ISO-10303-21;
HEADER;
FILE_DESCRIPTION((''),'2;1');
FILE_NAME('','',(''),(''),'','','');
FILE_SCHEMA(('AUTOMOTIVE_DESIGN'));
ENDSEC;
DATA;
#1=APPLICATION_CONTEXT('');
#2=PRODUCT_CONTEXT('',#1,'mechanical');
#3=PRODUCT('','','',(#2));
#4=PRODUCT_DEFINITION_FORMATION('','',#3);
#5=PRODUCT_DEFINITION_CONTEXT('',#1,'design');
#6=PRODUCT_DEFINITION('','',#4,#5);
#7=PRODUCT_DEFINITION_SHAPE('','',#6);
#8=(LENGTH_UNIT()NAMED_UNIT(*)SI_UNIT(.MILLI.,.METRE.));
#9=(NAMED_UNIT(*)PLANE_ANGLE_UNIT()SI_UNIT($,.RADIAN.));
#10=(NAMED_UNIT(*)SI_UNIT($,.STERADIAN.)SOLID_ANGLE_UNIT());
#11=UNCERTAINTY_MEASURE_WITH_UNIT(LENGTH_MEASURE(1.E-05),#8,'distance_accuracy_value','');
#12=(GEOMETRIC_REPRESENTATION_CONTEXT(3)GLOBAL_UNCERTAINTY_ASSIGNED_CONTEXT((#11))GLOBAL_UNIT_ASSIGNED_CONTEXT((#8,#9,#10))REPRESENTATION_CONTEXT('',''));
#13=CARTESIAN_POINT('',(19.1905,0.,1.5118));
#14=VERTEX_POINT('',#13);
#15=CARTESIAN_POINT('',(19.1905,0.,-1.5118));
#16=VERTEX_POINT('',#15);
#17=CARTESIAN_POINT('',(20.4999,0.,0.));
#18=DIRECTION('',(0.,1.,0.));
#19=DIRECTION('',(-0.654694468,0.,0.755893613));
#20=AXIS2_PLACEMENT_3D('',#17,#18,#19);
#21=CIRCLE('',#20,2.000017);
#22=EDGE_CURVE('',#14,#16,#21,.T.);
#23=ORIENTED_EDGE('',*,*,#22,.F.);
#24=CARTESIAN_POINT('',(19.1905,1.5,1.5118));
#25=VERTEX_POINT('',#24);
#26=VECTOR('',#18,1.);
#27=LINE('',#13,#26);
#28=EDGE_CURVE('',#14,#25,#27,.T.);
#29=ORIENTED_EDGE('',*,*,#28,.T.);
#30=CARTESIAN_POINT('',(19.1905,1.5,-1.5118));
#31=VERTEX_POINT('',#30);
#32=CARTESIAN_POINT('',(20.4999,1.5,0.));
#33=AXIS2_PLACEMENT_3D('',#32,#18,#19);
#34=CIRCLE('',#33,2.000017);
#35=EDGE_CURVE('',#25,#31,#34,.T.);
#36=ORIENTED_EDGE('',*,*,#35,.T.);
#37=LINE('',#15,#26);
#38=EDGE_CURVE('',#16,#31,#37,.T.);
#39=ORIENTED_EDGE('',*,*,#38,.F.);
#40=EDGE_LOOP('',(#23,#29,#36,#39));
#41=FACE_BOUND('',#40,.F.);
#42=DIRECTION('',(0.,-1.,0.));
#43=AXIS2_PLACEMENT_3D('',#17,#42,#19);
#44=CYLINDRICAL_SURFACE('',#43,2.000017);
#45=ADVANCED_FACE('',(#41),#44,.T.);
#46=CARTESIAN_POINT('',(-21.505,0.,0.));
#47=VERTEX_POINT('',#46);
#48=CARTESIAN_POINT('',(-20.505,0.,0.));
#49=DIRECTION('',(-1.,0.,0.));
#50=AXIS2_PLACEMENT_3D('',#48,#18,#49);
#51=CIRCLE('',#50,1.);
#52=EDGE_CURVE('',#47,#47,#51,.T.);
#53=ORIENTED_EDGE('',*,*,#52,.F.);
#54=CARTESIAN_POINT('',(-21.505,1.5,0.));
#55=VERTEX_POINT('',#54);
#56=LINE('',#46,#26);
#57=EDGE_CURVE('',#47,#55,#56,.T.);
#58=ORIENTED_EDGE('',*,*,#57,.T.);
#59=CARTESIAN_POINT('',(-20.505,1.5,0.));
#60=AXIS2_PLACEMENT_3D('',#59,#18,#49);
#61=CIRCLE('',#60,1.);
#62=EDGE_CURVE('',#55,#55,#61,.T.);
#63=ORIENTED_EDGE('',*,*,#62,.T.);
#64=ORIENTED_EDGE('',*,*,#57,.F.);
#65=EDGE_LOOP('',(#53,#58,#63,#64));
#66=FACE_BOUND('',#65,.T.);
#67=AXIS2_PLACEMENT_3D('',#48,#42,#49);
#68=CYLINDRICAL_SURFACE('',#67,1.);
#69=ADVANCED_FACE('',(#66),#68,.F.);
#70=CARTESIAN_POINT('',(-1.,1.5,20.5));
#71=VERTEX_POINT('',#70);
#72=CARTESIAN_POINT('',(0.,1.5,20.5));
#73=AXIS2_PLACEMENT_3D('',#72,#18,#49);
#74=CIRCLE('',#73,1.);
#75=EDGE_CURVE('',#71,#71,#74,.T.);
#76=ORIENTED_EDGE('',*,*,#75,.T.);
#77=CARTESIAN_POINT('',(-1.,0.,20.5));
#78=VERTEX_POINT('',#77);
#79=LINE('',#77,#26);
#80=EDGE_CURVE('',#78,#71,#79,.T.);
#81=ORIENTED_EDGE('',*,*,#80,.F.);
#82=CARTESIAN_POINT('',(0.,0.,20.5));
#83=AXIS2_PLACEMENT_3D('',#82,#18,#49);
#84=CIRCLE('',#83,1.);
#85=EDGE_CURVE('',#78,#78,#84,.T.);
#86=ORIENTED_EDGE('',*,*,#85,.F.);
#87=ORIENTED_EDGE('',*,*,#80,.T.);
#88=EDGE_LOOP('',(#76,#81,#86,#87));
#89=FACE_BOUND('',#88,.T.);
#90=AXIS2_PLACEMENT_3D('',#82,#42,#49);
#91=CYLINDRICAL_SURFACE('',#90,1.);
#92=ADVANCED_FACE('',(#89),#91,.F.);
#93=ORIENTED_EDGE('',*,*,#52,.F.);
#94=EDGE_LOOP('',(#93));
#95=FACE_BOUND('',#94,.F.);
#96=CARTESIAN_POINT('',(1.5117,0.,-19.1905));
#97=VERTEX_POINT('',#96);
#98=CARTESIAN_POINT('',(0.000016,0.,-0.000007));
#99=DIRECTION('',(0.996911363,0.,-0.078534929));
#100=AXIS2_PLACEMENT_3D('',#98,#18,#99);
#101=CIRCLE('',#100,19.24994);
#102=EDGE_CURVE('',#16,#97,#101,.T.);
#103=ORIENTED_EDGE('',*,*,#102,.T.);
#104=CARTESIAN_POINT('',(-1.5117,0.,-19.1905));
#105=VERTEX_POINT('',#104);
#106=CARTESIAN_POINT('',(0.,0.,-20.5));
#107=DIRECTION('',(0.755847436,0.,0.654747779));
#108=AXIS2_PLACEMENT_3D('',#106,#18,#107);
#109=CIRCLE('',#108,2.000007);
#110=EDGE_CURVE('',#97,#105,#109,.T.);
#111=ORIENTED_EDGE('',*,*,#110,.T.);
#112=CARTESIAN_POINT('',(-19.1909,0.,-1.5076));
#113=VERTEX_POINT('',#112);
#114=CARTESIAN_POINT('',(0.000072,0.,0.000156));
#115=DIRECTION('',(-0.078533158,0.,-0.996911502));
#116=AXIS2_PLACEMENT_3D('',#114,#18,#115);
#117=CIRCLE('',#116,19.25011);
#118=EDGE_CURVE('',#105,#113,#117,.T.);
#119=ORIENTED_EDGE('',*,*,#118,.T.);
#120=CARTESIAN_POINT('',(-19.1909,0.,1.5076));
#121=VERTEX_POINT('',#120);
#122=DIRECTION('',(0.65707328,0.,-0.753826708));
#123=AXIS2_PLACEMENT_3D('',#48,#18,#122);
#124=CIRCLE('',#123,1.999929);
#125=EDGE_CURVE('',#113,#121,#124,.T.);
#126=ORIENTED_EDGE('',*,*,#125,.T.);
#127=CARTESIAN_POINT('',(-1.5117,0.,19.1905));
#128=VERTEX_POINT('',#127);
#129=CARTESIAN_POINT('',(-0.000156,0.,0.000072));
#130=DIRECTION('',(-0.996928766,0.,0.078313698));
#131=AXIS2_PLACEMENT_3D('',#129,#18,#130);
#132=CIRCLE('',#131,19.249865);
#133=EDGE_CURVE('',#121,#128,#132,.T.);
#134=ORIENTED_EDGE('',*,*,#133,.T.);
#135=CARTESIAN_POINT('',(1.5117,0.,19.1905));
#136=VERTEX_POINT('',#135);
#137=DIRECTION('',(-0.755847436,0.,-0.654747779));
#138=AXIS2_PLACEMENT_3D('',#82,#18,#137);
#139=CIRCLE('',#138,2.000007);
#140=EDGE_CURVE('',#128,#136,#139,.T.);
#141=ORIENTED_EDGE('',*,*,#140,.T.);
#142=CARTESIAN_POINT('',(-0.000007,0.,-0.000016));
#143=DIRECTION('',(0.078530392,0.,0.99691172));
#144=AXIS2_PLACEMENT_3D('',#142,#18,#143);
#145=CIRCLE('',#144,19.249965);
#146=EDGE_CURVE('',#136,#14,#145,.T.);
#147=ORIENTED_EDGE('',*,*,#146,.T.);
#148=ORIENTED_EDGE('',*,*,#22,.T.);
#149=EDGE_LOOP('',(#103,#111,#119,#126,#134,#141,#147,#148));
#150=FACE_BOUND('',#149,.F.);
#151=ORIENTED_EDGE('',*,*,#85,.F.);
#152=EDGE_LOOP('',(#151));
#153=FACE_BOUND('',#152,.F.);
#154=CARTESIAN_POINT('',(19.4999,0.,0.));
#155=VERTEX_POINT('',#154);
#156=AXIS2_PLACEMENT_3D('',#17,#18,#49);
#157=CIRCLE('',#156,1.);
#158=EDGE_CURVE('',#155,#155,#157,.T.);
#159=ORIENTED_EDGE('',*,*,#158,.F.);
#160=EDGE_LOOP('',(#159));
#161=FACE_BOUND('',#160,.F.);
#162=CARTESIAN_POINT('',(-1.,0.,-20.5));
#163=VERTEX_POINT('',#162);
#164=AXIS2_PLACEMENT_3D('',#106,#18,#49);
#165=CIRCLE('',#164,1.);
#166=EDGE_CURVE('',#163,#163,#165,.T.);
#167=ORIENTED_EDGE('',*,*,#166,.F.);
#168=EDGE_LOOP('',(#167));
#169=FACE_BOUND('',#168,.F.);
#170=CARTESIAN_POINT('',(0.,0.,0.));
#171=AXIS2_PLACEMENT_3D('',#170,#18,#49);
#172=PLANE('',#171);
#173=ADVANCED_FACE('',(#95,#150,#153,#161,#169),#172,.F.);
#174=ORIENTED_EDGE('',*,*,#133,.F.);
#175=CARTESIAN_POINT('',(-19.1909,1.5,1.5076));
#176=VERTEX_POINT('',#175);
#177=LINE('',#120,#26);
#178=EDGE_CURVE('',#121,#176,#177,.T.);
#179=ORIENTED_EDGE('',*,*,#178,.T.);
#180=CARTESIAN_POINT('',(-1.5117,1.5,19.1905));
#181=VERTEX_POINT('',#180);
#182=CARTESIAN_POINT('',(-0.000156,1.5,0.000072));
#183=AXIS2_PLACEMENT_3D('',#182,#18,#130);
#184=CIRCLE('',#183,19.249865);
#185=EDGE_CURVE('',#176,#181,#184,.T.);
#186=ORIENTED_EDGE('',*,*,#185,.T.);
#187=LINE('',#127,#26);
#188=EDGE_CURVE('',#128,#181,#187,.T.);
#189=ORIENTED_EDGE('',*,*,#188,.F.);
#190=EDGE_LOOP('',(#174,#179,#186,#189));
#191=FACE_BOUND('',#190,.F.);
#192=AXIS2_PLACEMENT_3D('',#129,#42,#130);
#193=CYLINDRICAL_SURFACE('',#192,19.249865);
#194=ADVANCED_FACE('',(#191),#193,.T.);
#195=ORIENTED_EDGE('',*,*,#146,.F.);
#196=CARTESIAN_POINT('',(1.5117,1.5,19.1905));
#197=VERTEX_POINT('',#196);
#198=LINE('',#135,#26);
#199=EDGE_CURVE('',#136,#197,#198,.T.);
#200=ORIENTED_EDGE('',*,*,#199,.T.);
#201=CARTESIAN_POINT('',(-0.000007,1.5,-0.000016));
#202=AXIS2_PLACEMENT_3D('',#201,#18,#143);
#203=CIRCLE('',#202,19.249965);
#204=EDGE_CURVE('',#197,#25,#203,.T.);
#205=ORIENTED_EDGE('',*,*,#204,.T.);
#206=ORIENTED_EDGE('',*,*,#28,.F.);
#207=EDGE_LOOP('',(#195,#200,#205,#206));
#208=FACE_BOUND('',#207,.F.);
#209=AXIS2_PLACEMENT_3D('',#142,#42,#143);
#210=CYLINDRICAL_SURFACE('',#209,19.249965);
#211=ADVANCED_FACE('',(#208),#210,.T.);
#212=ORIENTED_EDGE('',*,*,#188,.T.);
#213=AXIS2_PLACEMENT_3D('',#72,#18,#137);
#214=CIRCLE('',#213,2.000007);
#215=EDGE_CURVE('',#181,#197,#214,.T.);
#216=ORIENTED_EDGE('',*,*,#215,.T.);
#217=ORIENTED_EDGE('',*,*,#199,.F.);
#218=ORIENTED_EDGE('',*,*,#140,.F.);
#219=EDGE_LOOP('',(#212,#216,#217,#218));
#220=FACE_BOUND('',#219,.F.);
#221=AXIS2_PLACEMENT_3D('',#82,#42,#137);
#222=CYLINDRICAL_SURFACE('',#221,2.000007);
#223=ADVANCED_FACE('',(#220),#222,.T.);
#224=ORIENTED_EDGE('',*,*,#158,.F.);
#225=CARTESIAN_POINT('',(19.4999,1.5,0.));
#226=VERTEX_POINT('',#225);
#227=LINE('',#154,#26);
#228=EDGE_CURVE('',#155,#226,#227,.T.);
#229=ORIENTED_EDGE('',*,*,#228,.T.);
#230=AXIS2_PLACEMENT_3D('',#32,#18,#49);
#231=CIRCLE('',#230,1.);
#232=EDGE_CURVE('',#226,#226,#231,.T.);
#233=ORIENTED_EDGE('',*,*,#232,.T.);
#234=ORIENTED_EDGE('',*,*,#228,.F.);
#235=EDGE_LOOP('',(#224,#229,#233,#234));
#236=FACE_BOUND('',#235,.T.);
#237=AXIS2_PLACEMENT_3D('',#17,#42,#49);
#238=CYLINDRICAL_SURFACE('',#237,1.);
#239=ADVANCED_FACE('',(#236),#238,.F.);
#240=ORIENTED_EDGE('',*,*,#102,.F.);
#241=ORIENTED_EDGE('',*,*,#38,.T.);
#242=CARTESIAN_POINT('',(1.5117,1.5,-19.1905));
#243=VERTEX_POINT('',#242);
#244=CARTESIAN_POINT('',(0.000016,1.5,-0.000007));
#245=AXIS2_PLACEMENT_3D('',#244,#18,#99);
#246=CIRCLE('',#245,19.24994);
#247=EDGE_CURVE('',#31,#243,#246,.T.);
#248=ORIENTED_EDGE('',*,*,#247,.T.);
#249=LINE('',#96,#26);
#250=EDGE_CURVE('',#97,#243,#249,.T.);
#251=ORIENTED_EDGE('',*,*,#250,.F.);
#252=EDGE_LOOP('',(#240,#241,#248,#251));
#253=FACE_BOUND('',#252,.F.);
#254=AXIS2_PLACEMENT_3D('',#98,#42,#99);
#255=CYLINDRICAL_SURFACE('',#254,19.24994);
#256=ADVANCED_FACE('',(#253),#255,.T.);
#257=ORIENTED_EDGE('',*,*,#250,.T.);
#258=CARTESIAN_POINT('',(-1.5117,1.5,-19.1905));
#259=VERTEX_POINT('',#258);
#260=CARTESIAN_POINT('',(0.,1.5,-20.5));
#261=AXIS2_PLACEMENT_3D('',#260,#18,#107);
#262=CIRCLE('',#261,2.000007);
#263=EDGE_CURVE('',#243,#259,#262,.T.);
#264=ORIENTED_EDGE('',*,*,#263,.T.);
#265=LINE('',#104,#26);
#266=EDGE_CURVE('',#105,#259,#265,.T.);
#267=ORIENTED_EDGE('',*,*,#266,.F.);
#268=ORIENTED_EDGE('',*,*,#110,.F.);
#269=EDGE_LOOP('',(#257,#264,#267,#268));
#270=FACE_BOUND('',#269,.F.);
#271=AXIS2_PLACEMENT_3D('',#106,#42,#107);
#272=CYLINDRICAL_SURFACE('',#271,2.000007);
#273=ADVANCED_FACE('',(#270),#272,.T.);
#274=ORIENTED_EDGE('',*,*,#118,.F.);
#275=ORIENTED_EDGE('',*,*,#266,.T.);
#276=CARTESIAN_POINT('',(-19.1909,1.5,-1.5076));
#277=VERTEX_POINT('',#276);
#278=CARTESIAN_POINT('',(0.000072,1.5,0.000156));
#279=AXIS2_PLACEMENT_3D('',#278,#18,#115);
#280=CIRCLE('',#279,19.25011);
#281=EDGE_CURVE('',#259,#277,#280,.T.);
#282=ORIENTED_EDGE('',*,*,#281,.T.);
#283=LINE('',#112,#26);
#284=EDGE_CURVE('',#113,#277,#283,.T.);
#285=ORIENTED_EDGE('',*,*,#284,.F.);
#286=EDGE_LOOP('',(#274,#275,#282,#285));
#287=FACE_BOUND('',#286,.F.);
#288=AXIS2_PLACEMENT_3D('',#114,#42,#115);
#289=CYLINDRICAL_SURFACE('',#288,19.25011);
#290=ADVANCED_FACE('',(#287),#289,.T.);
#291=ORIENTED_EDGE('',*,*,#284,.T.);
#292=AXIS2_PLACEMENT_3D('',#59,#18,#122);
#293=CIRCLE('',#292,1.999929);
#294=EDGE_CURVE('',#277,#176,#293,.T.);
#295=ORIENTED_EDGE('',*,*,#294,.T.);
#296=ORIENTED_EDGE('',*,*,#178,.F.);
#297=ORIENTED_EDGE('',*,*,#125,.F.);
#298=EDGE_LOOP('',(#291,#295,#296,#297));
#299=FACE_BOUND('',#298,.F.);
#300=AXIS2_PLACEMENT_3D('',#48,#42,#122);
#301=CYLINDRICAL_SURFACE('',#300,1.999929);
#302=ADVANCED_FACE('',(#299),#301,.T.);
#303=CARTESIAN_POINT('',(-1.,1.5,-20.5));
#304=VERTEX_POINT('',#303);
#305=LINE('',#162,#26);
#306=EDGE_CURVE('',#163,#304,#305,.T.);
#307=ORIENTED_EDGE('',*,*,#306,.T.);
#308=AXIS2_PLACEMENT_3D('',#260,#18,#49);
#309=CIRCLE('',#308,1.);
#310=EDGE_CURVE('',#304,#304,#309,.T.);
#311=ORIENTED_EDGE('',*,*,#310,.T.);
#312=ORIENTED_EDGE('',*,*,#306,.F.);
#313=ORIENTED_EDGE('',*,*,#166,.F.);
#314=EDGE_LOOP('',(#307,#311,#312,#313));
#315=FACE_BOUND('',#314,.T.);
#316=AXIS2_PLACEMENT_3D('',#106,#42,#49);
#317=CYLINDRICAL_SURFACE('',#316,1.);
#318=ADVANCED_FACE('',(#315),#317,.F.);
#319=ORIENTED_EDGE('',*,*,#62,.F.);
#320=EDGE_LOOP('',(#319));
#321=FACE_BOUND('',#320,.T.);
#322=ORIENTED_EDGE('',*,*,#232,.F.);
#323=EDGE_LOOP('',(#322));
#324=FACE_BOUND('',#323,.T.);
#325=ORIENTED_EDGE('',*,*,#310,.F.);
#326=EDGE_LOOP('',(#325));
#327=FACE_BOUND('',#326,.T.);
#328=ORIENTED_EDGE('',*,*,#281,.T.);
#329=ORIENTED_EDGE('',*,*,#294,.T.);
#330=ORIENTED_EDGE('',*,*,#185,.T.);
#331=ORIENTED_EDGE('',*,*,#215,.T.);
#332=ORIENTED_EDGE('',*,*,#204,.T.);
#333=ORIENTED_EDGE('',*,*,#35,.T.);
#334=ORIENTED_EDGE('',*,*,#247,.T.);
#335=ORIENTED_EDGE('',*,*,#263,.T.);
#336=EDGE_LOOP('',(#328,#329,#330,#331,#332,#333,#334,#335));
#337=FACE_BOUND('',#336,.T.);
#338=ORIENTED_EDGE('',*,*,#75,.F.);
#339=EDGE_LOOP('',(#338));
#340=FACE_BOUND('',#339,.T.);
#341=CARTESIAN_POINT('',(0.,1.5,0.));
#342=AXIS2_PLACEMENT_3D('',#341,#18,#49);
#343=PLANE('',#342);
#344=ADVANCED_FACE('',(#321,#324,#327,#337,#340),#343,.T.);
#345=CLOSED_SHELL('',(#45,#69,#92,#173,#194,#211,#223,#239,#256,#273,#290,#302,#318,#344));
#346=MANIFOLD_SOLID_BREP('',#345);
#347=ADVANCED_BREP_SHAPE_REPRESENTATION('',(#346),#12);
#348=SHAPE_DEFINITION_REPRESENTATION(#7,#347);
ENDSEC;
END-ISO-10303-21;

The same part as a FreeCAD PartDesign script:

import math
import FreeCAD as App
import Part
import Sketcher

V = App.Vector
Q = App.Units.Quantity

doc = App.newDocument("Part")
body = doc.addObject("PartDesign::Body", "Body")

sketch1 = body.newObject("Sketcher::SketchObject", "Sketch")
sketch1.AttachmentSupport = (doc.getObject("XZ_Plane"), [""])
sketch1.MapMode = "FlatFace"
sketch1.addGeometry([
    Part.ArcOfCircle(Part.Circle(V(0, 0, 0), V(0, 0, 1), 19.249949), math.radians(-85.49592), math.radians(-4.504376)),
    Part.ArcOfCircle(Part.Circle(V(0, -20.5, 0), V(0, 0, 1), 2.000007), math.radians(139.099472), math.radians(400.900528)),
    Part.ArcOfCircle(Part.Circle(V(0, 0, 0), V(0, 0, 1), 19.250026), math.radians(-175.508179), math.radians(-94.50408)),
    Part.ArcOfCircle(Part.Circle(V(-20.505, 0, 0), V(0, 0, 1), 1.999929), math.radians(48.922955), math.radians(311.077045)),
    Part.ArcOfCircle(Part.Circle(V(0, 0, 0), V(0, 0, 1), 19.249949), math.radians(94.50408), math.radians(175.508179)),
    Part.ArcOfCircle(Part.Circle(V(0, 20.5, 0), V(0, 0, 1), 2.000007), math.radians(-40.900528), math.radians(220.900528)),
    Part.ArcOfCircle(Part.Circle(V(0, 0, 0), V(0, 0, 1), 19.249957), math.radians(4.504376), math.radians(85.49592)),
    Part.ArcOfCircle(Part.Circle(V(20.4999, 0, 0), V(0, 0, 1), 2.000017), math.radians(-130.896487), math.radians(130.896487)),
    Part.Circle(V(0, -20.5, 0), V(0, 0, 1), 1),
    Part.Circle(V(20.4999, 0, 0), V(0, 0, 1), 1),
    Part.Circle(V(0, 20.5, 0), V(0, 0, 1), 1),
    Part.Circle(V(-20.505, 0, 0), V(0, 0, 1), 1),
], False)
sketch1.addConstraint([
    Sketcher.Constraint("Coincident", 0, 1, 1, 2),
    Sketcher.Constraint("Coincident", 1, 1, 2, 2),
    Sketcher.Constraint("Coincident", 2, 1, 3, 2),
    Sketcher.Constraint("Coincident", 3, 1, 4, 2),
    Sketcher.Constraint("Coincident", 4, 1, 5, 2),
    Sketcher.Constraint("Coincident", 5, 1, 6, 2),
    Sketcher.Constraint("Coincident", 6, 1, 7, 2),
    Sketcher.Constraint("Coincident", 7, 1, 0, 2),
    Sketcher.Constraint("Coincident", 0, 3, -1, 1),
    Sketcher.Constraint("Coincident", 2, 3, -1, 1),
    Sketcher.Constraint("Coincident", 4, 3, -1, 1),
    Sketcher.Constraint("Coincident", 6, 3, -1, 1),
    Sketcher.Constraint("Coincident", 8, 3, 1, 3),
    Sketcher.Constraint("Coincident", 9, 3, 7, 3),
    Sketcher.Constraint("Coincident", 10, 3, 5, 3),
    Sketcher.Constraint("Coincident", 11, 3, 3, 3),
    Sketcher.Constraint("Equal", 0, 2),
    Sketcher.Constraint("Equal", 1, 3),
    Sketcher.Constraint("Equal", 2, 4),
    Sketcher.Constraint("Equal", 3, 5),
    Sketcher.Constraint("Equal", 4, 6),
    Sketcher.Constraint("Equal", 5, 7),
    Sketcher.Constraint("Equal", 8, 9),
    Sketcher.Constraint("Equal", 9, 10),
    Sketcher.Constraint("Equal", 10, 11),
    Sketcher.Constraint("Symmetric", 1, 3, 5, 3, -1, 1),
    Sketcher.Constraint("PointOnObject", 1, 3, -2),
    Sketcher.Constraint("PointOnObject", 3, 3, -1),
    Sketcher.Constraint("PointOnObject", 7, 3, -1),
    Sketcher.Constraint("Diameter", 8, Q("2 mm")),
    Sketcher.Constraint("Radius", 1, Q("2 mm")),
    Sketcher.Constraint("Radius", 0, Q("19.25 mm")),
    Sketcher.Constraint("DistanceY", 1, 3, 5, 3, Q("41 mm")),
    Sketcher.Constraint("DistanceX", -1, 1, 7, 3, Q("20.5 mm")),
    Sketcher.Constraint("DistanceX", 3, 3, -1, 1, Q("20.505 mm")),
])
pad1 = body.newObject("PartDesign::Pad", "Pad")
pad1.Profile = sketch1
pad1.Length = 1.5
pad1.Reversed = True

doc.recompute()
